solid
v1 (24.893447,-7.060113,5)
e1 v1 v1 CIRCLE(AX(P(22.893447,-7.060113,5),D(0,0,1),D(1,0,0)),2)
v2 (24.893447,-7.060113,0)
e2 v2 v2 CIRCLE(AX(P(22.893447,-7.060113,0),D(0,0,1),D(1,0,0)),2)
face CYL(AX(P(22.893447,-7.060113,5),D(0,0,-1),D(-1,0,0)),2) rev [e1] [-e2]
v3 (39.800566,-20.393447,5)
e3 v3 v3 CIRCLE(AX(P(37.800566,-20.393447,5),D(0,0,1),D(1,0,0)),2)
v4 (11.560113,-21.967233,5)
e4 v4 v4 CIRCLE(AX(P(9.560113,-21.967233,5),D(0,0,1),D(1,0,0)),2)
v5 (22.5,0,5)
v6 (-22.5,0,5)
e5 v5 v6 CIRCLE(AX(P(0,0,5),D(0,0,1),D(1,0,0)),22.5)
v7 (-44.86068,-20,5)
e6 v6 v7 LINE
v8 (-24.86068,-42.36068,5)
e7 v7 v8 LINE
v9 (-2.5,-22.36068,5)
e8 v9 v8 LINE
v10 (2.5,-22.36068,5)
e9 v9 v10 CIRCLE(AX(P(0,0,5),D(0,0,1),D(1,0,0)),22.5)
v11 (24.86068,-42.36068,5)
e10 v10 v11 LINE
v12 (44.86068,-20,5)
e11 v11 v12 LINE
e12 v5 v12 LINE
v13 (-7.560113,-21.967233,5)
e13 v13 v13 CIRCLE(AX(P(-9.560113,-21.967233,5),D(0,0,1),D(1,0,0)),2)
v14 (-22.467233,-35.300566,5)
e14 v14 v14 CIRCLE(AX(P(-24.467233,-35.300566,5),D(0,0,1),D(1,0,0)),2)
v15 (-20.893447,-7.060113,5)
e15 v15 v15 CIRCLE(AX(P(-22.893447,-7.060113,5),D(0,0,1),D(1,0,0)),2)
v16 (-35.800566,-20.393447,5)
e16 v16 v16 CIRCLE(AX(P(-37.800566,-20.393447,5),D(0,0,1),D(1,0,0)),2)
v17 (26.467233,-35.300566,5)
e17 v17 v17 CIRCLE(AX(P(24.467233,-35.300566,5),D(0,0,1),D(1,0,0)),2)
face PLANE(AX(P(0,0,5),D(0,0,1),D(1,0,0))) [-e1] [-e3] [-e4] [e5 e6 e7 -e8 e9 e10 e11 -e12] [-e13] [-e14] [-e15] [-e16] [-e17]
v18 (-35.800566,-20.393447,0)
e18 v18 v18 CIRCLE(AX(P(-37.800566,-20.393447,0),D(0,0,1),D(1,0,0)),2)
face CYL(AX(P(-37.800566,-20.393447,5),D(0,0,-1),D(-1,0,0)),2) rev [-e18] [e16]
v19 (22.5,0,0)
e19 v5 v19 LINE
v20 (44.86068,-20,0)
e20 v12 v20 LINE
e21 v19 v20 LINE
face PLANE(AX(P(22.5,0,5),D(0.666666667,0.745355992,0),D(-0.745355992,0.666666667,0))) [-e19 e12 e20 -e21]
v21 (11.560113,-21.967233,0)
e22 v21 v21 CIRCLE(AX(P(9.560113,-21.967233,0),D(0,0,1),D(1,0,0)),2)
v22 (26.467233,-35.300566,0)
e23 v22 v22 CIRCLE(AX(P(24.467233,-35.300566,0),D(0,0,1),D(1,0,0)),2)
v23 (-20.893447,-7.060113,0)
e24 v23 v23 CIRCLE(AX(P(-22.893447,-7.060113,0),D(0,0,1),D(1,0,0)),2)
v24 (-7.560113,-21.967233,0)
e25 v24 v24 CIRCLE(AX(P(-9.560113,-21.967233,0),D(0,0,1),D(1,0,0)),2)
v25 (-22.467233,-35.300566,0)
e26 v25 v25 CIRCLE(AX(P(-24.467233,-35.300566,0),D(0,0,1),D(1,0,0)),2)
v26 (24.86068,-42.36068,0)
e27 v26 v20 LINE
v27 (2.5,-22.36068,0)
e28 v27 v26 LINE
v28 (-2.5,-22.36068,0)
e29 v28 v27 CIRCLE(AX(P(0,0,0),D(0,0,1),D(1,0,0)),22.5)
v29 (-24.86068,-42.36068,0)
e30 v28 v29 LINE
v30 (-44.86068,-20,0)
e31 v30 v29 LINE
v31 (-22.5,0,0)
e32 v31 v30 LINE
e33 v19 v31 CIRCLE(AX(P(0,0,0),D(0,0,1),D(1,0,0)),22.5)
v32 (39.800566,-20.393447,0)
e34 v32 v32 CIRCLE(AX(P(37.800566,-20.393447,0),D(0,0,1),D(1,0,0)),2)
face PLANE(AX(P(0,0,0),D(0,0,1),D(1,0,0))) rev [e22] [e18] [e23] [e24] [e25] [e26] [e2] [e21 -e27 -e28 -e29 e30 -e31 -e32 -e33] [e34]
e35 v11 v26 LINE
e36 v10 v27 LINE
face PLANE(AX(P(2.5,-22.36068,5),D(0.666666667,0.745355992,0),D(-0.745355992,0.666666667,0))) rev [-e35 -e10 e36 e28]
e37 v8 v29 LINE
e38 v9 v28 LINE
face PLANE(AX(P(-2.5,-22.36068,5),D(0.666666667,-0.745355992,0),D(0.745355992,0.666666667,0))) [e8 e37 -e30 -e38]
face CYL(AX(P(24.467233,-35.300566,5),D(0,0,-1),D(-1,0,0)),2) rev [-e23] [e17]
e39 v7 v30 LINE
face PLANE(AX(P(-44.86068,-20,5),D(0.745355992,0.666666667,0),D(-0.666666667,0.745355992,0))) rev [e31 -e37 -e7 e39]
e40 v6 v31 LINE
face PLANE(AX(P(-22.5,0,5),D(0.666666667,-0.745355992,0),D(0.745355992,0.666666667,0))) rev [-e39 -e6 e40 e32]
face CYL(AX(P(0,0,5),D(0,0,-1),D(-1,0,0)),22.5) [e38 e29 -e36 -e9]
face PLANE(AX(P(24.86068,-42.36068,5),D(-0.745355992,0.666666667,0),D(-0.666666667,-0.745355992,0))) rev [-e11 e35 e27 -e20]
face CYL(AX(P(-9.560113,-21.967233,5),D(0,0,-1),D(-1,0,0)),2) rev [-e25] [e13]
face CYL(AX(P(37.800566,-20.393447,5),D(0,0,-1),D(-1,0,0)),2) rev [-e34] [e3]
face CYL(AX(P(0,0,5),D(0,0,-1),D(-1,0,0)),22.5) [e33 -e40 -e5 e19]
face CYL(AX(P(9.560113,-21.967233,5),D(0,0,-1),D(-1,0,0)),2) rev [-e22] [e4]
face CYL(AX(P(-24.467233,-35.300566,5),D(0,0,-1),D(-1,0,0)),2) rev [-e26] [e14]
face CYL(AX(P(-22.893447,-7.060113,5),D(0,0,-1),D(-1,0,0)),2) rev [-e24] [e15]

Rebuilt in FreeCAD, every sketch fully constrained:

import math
import FreeCAD as App
import Part
import Sketcher

V = App.Vector

doc = App.newDocument("Part")
body = doc.addObject("PartDesign::Body", "Body")

# Sketch on XY plane
sketch1 = body.newObject("Sketcher::SketchObject", "Sketch")
sketch1.AttachmentSupport = (doc.getObject("XY_Plane"), [""])
sketch1.MapMode = "FlatFace"
sketch1.addGeometry(Part.LineSegment(V(-25, -42, 0), V(-2, -22, 0)), False)
sketch1.addGeometry(Part.ArcOfCircle(Part.Circle(V(0, 0, 0), V(0, 0, 1), 22), math.radians(-96.38), math.radians(-83.62)), False)
sketch1.addGeometry(Part.LineSegment(V(2, -22, 0), V(25, -42, 0)), False)
sketch1.addGeometry(Part.LineSegment(V(25, -42, 0), V(45, -20, 0)), False)
sketch1.addGeometry(Part.LineSegment(V(45, -20, 0), V(22, 0, 0)), False)
sketch1.addGeometry(Part.ArcOfCircle(Part.Circle(V(0, 0, 0), V(0, 0, 1), 22), math.radians(0), math.radians(180)), False)
sketch1.addGeometry(Part.LineSegment(V(-22, 0, 0), V(-45, -20, 0)), False)
sketch1.addGeometry(Part.LineSegment(V(-45, -20, 0), V(-25, -42, 0)), False)
sketch1.addConstraint(Sketcher.Constraint("Coincident", 0, 2, 1, 1))
sketch1.addConstraint(Sketcher.Constraint("Coincident", 1, 2, 2, 1))
sketch1.addConstraint(Sketcher.Constraint("Coincident", 2, 2, 3, 1))
sketch1.addConstraint(Sketcher.Constraint("Coincident", 3, 2, 4, 1))
sketch1.addConstraint(Sketcher.Constraint("Coincident", 4, 2, 5, 1))
sketch1.addConstraint(Sketcher.Constraint("Coincident", 5, 2, 6, 1))
sketch1.addConstraint(Sketcher.Constraint("Coincident", 6, 2, 7, 1))
sketch1.addConstraint(Sketcher.Constraint("Coincident", 7, 2, 0, 1))
sketch1.addConstraint(Sketcher.Constraint("Coincident", 1, 3, -1, 1))
sketch1.addConstraint(Sketcher.Constraint("Coincident", 5, 3, -1, 1))
sketch1.addConstraint(Sketcher.Constraint("Equal", 1, 5))
sketch1.addConstraint(Sketcher.Constraint("Symmetric", 3, 2, 6, 2, -2))
sketch1.addConstraint(Sketcher.Constraint("Symmetric", 2, 2, 7, 2, -2))
sketch1.addConstraint(Sketcher.Constraint("PointOnObject", 4, 2, -1))
sketch1.addConstraint(Sketcher.Constraint("PointOnObject", 5, 2, -1))
sketch1.addConstraint(Sketcher.Constraint("Perpendicular", 2, 3))
sketch1.addConstraint(Sketcher.Constraint("Perpendicular", 3, 4))
sketch1.addConstraint(Sketcher.Constraint("Parallel", 0, 6))
sketch1.addConstraint(Sketcher.Constraint("Equal", 2, 3))
sketch1.addConstraint(Sketcher.Constraint("Equal", 3, 4))
sketch1.addConstraint(Sketcher.Constraint("Radius", 1, 22.5))
sketch1.addConstraint(Sketcher.Constraint("Distance", 0, 30.0))
pad1 = body.newObject("PartDesign::Pad", "Pad")
pad1.Profile = sketch1
pad1.Length = 5

# Sketch on XY plane
sketch2 = body.newObject("Sketcher::SketchObject", "Sketch001")
sketch2.AttachmentSupport = (doc.getObject("XY_Plane"), [""])
sketch2.MapMode = "FlatFace"
sketch2.addGeometry(Part.Circle(V(37.8, -20.4, 0), V(0, 0, 1), 2), False)
sketch2.addGeometry(Part.Circle(V(22.9, -7.1, 0), V(0, 0, 1), 2), False)
sketch2.addGeometry(Part.Circle(V(9.6, -22, 0), V(0, 0, 1), 2), False)
sketch2.addGeometry(Part.Circle(V(24.5, -35.3, 0), V(0, 0, 1), 2), False)
sketch2.addGeometry(Part.Circle(V(-24.5, -35.3, 0), V(0, 0, 1), 2), False)
sketch2.addGeometry(Part.Circle(V(-37.8, -20.4, 0), V(0, 0, 1), 2), False)
sketch2.addGeometry(Part.Circle(V(-9.6, -22, 0), V(0, 0, 1), 2), False)
sketch2.addGeometry(Part.Circle(V(-22.9, -7.1, 0), V(0, 0, 1), 2), False)
sketch2.addConstraint(Sketcher.Constraint("Equal", 0, 1))
sketch2.addConstraint(Sketcher.Constraint("Equal", 1, 2))
sketch2.addConstraint(Sketcher.Constraint("Equal", 2, 3))
sketch2.addConstraint(Sketcher.Constraint("Equal", 3, 4))
sketch2.addConstraint(Sketcher.Constraint("Equal", 4, 5))
sketch2.addConstraint(Sketcher.Constraint("Equal", 5, 6))
sketch2.addConstraint(Sketcher.Constraint("Equal", 6, 7))
sketch2.addConstraint(Sketcher.Constraint("Symmetric", 3, 3, 4, 3, -2))
sketch2.addConstraint(Sketcher.Constraint("Symmetric", 0, 3, 5, 3, -2))
sketch2.addConstraint(Sketcher.Constraint("Symmetric", 2, 3, 6, 3, -2))
sketch2.addConstraint(Sketcher.Constraint("Symmetric", 1, 3, 7, 3, -2))
sketch2.addConstraint(Sketcher.Constraint("Diameter", 0, 4.0))
sketch2.addConstraint(Sketcher.Constraint("DistanceX", 4, 3, 0, 3, 62.2678))
sketch2.addConstraint(Sketcher.Constraint("DistanceX", 1, 3, 0, 3, 14.90712))
sketch2.addConstraint(Sketcher.Constraint("DistanceY", 2, 3, 1, 3, 14.90712))
sketch2.addConstraint(Sketcher.Constraint("DistanceY", 3, 3, 0, 3, 14.90712))
sketch2.addConstraint(Sketcher.Constraint("DistanceX", 2, 3, 3, 3, 14.90712))
sketch2.addConstraint(Sketcher.Constraint("DistanceX", -1, 1, 0, 3, 37.800566))
sketch2.addConstraint(Sketcher.Constraint("DistanceY", 0, 3, -1, 1, 20.393447))
sketch2.addConstraint(Sketcher.Constraint("DistanceY", 1, 3, -1, 1, 7.060113))
pocket1 = body.newObject("PartDesign::Pocket", "Pocket")
pocket1.Profile = sketch2
pocket1.Length = 5
pocket1.Reversed = True

doc.recompute()
